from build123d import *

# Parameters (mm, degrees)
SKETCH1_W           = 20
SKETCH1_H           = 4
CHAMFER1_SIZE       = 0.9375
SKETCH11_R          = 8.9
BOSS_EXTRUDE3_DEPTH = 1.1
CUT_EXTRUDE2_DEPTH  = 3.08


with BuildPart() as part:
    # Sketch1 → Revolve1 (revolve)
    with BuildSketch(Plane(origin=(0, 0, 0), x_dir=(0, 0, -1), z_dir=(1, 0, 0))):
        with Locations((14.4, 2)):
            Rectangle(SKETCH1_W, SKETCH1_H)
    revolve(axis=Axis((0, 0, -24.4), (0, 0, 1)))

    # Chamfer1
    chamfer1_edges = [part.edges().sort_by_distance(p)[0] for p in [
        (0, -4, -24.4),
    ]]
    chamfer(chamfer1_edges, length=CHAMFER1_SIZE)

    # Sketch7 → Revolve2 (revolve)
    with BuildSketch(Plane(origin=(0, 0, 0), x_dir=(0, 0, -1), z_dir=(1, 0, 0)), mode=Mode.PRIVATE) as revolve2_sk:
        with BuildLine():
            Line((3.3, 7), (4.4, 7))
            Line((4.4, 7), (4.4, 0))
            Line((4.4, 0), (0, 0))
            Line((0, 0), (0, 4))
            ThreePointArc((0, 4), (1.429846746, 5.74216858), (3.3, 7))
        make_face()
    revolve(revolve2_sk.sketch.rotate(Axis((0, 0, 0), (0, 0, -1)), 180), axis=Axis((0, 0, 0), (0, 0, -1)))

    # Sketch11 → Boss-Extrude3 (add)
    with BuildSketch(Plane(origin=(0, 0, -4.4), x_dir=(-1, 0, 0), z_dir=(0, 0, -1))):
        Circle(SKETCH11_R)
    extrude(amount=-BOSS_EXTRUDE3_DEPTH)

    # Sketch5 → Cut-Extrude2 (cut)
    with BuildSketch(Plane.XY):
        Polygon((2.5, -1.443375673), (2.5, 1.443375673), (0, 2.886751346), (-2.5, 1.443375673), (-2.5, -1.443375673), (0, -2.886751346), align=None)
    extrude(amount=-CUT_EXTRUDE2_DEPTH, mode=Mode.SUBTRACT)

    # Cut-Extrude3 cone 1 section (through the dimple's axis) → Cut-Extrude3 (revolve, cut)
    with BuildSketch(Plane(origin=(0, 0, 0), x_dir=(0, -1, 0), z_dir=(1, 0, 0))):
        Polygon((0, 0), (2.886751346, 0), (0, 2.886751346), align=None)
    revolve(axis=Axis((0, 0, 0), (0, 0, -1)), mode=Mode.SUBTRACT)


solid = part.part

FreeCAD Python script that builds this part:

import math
import FreeCAD as App
import Part
import Sketcher

V = App.Vector
Q = App.Units.Quantity


def edges_at(feature, points):
    """Names of the edges that pass closest to the given points."""
    edges = feature.Shape.Edges
    near = lambda p: min(range(len(edges)), key=lambda i: edges[i].distToShape(Part.Vertex(*p))[0])
    return sorted({f"Edge{near(p) + 1}" for p in points})

doc = App.newDocument("Part")
body = doc.addObject("PartDesign::Body", "Body")

sketch1 = body.newObject("Sketcher::SketchObject", "Sketch")
sketch1.AttachmentSupport = (doc.getObject("YZ_Plane"), [""])
sketch1.MapMode = "FlatFace"
sketch1.addGeometry([
    Part.LineSegment(V(4, -4.4, 0), V(0, -4.4, 0)),
    Part.LineSegment(V(0, -4.4, 0), V(0, -24.4, 0)),
    Part.LineSegment(V(0, -24.4, 0), V(4, -24.4, 0)),
    Part.LineSegment(V(4, -24.4, 0), V(4, -4.4, 0)),
], False)
sketch1.addConstraint([
    Sketcher.Constraint("Coincident", 0, 2, 1, 1),
    Sketcher.Constraint("Coincident", 1, 2, 2, 1),
    Sketcher.Constraint("Coincident", 2, 2, 3, 1),
    Sketcher.Constraint("Coincident", 3, 2, 0, 1),
    Sketcher.Constraint("Horizontal", 0),
    Sketcher.Constraint("Vertical", 1),
    Sketcher.Constraint("Horizontal", 2),
    Sketcher.Constraint("Vertical", 3),
    Sketcher.Constraint("PointOnObject", 0, 2, -2),
    Sketcher.Constraint("DistanceX", 0, 2, 0, 1, 4.0),
    Sketcher.Constraint("DistanceY", 1, 2, 1, 1, 20.0),
    Sketcher.Constraint("DistanceY", 0, 2, -1, 1, 4.4),
])
revolution = body.newObject("PartDesign::Revolution", "Revolution")
revolution.Profile = sketch1
revolution.ReferenceAxis = (sketch1, ["V_Axis"])
revolution.Angle = 360
doc.recompute()

chamfer = body.newObject("PartDesign::Chamfer", "Chamfer")
chamfer.Base = (revolution, edges_at(revolution, [(0, -4, -24.4)]))
chamfer.Size = 0.9375

sketch2 = body.newObject("Sketcher::SketchObject", "Sketch001")
sketch2.AttachmentSupport = (doc.getObject("YZ_Plane"), [""])
sketch2.MapMode = "FlatFace"
sketch2.addGeometry([
    Part.LineSegment(V(7, -4.4, 0), V(7, -3.3, 0)),
    Part.ArcOfCircle(Part.Circle(V(0, -6.7, 0), V(0, 0, 1), 7.8), math.radians(26), math.radians(59)),
    Part.LineSegment(V(4, 0, 0), V(0, 0, 0)),
    Part.LineSegment(V(0, 0, 0), V(0, -4.4, 0)),
    Part.LineSegment(V(0, -4.4, 0), V(7, -4.4, 0)),
], False)
sketch2.addConstraint([
    Sketcher.Constraint("Coincident", 0, 2, 1, 1),
    Sketcher.Constraint("Coincident", 1, 2, 2, 1),
    Sketcher.Constraint("Coincident", 2, 2, 3, 1),
    Sketcher.Constraint("Coincident", 3, 2, 4, 1),
    Sketcher.Constraint("Coincident", 4, 2, 0, 1),
    Sketcher.Constraint("Vertical", 0),
    Sketcher.Constraint("Horizontal", 2),
    Sketcher.Constraint("Vertical", 3),
    Sketcher.Constraint("Horizontal", 4),
    Sketcher.Constraint("Coincident", 2, 2, -1, 1),
    Sketcher.Constraint("PointOnObject", 1, 3, -2),
    Sketcher.Constraint("DistanceX", 2, 2, 2, 1, 4.0),
    Sketcher.Constraint("DistanceX", 4, 1, 4, 2, 7.0),
    Sketcher.Constraint("DistanceY", 0, 1, 0, 2, 1.1),
    Sketcher.Constraint("DistanceY", 3, 2, 3, 1, 4.4),
])
revolution2 = body.newObject("PartDesign::Revolution", "Revolution001")
revolution2.Profile = sketch2
revolution2.ReferenceAxis = (sketch2, ["V_Axis"])
revolution2.Angle = 360

sketch3 = body.newObject("Sketcher::SketchObject", "Sketch002")
sketch3.AttachmentSupport = (doc.getObject("XY_Plane"), [""])
sketch3.MapMode = "FlatFace"
sketch3.AttachmentOffset = App.Placement(V(0, 0, -4.4), App.Rotation())
sketch3.addGeometry(Part.Circle(V(0, 0, 0), V(0, 0, 1), 9), False)
sketch3.addConstraint([
    Sketcher.Constraint("Coincident", 0, 3, -1, 1),
    Sketcher.Constraint("Diameter", 0, 17.8),
])
pad1 = body.newObject("PartDesign::Pad", "Pad")
pad1.Profile = sketch3
pad1.Length = 1.1

sketch4 = body.newObject("Sketcher::SketchObject", "Sketch003")
sketch4.AttachmentSupport = (doc.getObject("XY_Plane"), [""])
sketch4.MapMode = "FlatFace"
sketch4.addGeometry([
    Part.LineSegment(V(2.5, -1.4, 0), V(2.5, 1.4, 0)),
    Part.LineSegment(V(2.5, 1.4, 0), V(0, 2.9, 0)),
    Part.LineSegment(V(0, 2.9, 0), V(-2.5, 1.4, 0)),
    Part.LineSegment(V(-2.5, 1.4, 0), V(-2.5, -1.4, 0)),
    Part.LineSegment(V(-2.5, -1.4, 0), V(0, -2.9, 0)),
    Part.LineSegment(V(0, -2.9, 0), V(2.5, -1.4, 0)),
], False)
sketch4.addConstraint([
    Sketcher.Constraint("Coincident", 0, 2, 1, 1),
    Sketcher.Constraint("Coincident", 1, 2, 2, 1),
    Sketcher.Constraint("Coincident", 2, 2, 3, 1),
    Sketcher.Constraint("Coincident", 3, 2, 4, 1),
    Sketcher.Constraint("Coincident", 4, 2, 5, 1),
    Sketcher.Constraint("Coincident", 5, 2, 0, 1),
    Sketcher.Constraint("Vertical", 0),
    Sketcher.Constraint("Vertical", 3),
    Sketcher.Constraint("Symmetric", 0, 2, 3, 2, -1, 1),
    Sketcher.Constraint("Symmetric", 1, 2, 4, 2, -1, 1),
    Sketcher.Constraint("PointOnObject", 1, 2, -2),
    Sketcher.Constraint("Parallel", 2, 5),
    Sketcher.Constraint("Horizontal", 0, 2, 2, 2),
    Sketcher.Constraint("Angle", 1, Q("150 deg")),
    Sketcher.Constraint("DistanceX", 2, 2, 0, 2, 5.0),
    Sketcher.Constraint("DistanceY", 0, 1, 0, 2, 2.886751),
])
pocket1 = body.newObject("PartDesign::Pocket", "Pocket")
pocket1.Profile = sketch4
pocket1.Length = 3.08

sketch5 = body.newObject("Sketcher::SketchObject", "Sketch004")
sketch5.AttachmentSupport = (doc.getObject("YZ_Plane"), [""])
sketch5.MapMode = "FlatFace"
sketch5.addGeometry([
    Part.LineSegment(V(0, 0, 0), V(-2.9, 0, 0)),
    Part.LineSegment(V(-2.9, 0, 0), V(0, -2.9, 0)),
    Part.LineSegment(V(0, -2.9, 0), V(0, 0, 0)),
], False)
sketch5.addConstraint([
    Sketcher.Constraint("Coincident", 0, 2, 1, 1),
    Sketcher.Constraint("Coincident", 1, 2, 2, 1),
    Sketcher.Constraint("Coincident", 2, 2, 0, 1),
    Sketcher.Constraint("Horizontal", 0),
    Sketcher.Constraint("Vertical", 2),
    Sketcher.Constraint("Coincident", 2, 2, -1, 1),
    Sketcher.Constraint("Equal", 0, 2),
    Sketcher.Constraint("DistanceX", 0, 2, 0, 1, 2.886751),
])
groove = body.newObject("PartDesign::Groove", "Groove")
groove.Profile = sketch5
groove.ReferenceAxis = (sketch5, ["V_Axis"])
groove.Angle = 360

doc.recompute()
